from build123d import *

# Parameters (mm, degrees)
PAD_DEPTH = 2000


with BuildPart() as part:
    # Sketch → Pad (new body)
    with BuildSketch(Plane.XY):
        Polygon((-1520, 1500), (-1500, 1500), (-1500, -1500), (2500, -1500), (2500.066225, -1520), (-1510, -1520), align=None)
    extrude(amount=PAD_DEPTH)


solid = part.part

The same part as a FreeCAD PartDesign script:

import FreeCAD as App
import Part
import Sketcher
from FreeCAD import Vector
Q = App.Units.Quantity

doc = App.newDocument("Part")
params = doc.addObject("Spreadsheet::Sheet", "Params")
for row, (alias, value) in enumerate([
    ("sketch1_width", "20 mm"),
    ("sketch1_width2", "4000 mm"),
    ("sketch1_height", "3000 mm"),
    ("pad1_length", "2000 mm"),
], start=1):
    params.set(f"A{row}", alias)
    params.set(f"B{row}", "=" + value)
    params.setAlias(f"B{row}", alias)

body = doc.addObject("PartDesign::Body", "Body")

# Sketch on XY plane
sketch1 = body.newObject("Sketcher::SketchObject", "Sketch")
sketch1.AttachmentSupport = (doc.getObject("XY_Plane"), [""])
sketch1.MapMode = "FlatFace"
sketch1.addGeometry([
    Part.LineSegment(Vector(-1500, 1500, 0), Vector(-1520, 1500, 0)),  # 0
    Part.LineSegment(Vector(-1520, 1500, 0), Vector(-1510, -1520, 0)),  # 1
    Part.LineSegment(Vector(-1510, -1520, 0), Vector(2500, -1520, 0)),  # 2
    Part.LineSegment(Vector(2500, -1520, 0), Vector(2500, -1500, 0)),  # 3
    Part.LineSegment(Vector(2500, -1500, 0), Vector(-1500, -1500, 0)),  # 4
    Part.LineSegment(Vector(-1500, -1500, 0), Vector(-1500, 1500, 0)),  # 5
], False)
sketch1.addConstraint([
    Sketcher.Constraint("Coincident", 0, 2, 1, 1),
    Sketcher.Constraint("Coincident", 1, 2, 2, 1),
    Sketcher.Constraint("Coincident", 2, 2, 3, 1),
    Sketcher.Constraint("Coincident", 3, 2, 4, 1),
    Sketcher.Constraint("Coincident", 4, 2, 5, 1),
    Sketcher.Constraint("Coincident", 5, 2, 0, 1),
    Sketcher.Constraint("Horizontal", 0),
    Sketcher.Constraint("Horizontal", 2),
    Sketcher.Constraint("Horizontal", 4),
    Sketcher.Constraint("Vertical", 5),
    Sketcher.Constraint("Parallel", 1, 3),
    Sketcher.Constraint("DistanceX", 0, 2, 0, 1, Q("20 mm")),
    Sketcher.Constraint("DistanceX", 4, 2, 4, 1, Q("4000 mm")),
    Sketcher.Constraint("DistanceY", 5, 1, 5, 2, Q("3000 mm")),
    Sketcher.Constraint("DistanceX", 0, 2, -1, 1, Q("1520 mm")),
    Sketcher.Constraint("DistanceY", -1, 1, 0, 2, Q("1500 mm")),
    Sketcher.Constraint("DistanceX", 1, 2, -1, 1, Q("1510 mm")),
    Sketcher.Constraint("DistanceY", 1, 2, -1, 1, Q("1520 mm")),
])
sketch1.setExpression("Constraints[11]", "Params.sketch1_width")
sketch1.setExpression("Constraints[12]", "Params.sketch1_width2")
sketch1.setExpression("Constraints[13]", "Params.sketch1_height")
pad1 = body.newObject("PartDesign::Pad", "Pad")
pad1.Profile = sketch1
pad1.setExpression("Length", "Params.pad1_length")

doc.recompute()
